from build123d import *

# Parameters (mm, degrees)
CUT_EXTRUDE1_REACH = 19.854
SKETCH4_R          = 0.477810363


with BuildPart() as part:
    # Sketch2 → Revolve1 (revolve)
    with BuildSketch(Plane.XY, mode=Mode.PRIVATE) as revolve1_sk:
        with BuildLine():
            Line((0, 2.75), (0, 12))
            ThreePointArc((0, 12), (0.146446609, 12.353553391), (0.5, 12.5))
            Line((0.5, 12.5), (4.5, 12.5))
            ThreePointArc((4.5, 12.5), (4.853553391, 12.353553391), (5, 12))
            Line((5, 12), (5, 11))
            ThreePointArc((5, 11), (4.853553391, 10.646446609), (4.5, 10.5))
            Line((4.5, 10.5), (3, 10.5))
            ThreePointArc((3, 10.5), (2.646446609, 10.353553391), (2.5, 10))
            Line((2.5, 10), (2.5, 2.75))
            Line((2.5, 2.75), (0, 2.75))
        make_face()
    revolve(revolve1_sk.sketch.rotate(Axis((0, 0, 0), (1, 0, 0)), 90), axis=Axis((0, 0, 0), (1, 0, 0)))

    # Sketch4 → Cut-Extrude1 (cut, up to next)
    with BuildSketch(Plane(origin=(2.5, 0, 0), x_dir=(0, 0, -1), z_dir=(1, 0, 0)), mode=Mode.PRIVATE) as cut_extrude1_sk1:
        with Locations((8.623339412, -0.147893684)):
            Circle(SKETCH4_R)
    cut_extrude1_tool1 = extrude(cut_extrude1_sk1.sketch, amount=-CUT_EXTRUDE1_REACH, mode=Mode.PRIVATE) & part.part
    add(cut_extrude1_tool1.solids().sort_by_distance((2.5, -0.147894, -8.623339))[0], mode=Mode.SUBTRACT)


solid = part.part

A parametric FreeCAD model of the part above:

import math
import FreeCAD as App
import Part
import Sketcher

V = App.Vector
Q = App.Units.Quantity

doc = App.newDocument("Part")
body = doc.addObject("PartDesign::Body", "Body")

sketch1 = body.newObject("Sketcher::SketchObject", "Sketch")
sketch1.AttachmentSupport = (doc.getObject("XY_Plane"), [""])
sketch1.MapMode = "FlatFace"
sketch1.addGeometry([
    Part.LineSegment(V(0, 12, 0), V(0, 2.75, 0)),
    Part.LineSegment(V(0, 2.75, 0), V(2.5, 2.75, 0)),
    Part.LineSegment(V(2.5, 2.75, 0), V(2.5, 10, 0)),
    Part.ArcOfCircle(Part.Circle(V(3, 10, 0), V(0, 0, 1), 0.5), math.radians(90), math.radians(180)),
    Part.LineSegment(V(3, 10.5, 0), V(4.5, 10.5, 0)),
    Part.ArcOfCircle(Part.Circle(V(4.5, 11, 0), V(0, 0, 1), 0.5), math.radians(-90), math.radians(0)),
    Part.LineSegment(V(5, 11, 0), V(5, 12, 0)),
    Part.ArcOfCircle(Part.Circle(V(4.5, 12, 0), V(0, 0, 1), 0.5), math.radians(0), math.radians(90)),
    Part.LineSegment(V(4.5, 12.5, 0), V(0.5, 12.5, 0)),
    Part.ArcOfCircle(Part.Circle(V(0.5, 12, 0), V(0, 0, 1), 0.5), math.radians(90), math.radians(180)),
], False)
sketch1.addConstraint([
    Sketcher.Constraint("Coincident", 0, 2, 1, 1),
    Sketcher.Constraint("Coincident", 1, 2, 2, 1),
    Sketcher.Constraint("Tangent", 2, 2, 3, 2),
    Sketcher.Constraint("Tangent", 3, 1, 4, 1),
    Sketcher.Constraint("Tangent", 4, 2, 5, 1),
    Sketcher.Constraint("Tangent", 5, 2, 6, 1),
    Sketcher.Constraint("Tangent", 6, 2, 7, 1),
    Sketcher.Constraint("Tangent", 7, 2, 8, 1),
    Sketcher.Constraint("Tangent", 8, 2, 9, 1),
    Sketcher.Constraint("Tangent", 9, 2, 0, 1),
    Sketcher.Constraint("Vertical", 0),
    Sketcher.Constraint("Horizontal", 1),
    Sketcher.Constraint("Vertical", 2),
    Sketcher.Constraint("Horizontal", 4),
    Sketcher.Constraint("Vertical", 6),
    Sketcher.Constraint("Horizontal", 8),
    Sketcher.Constraint("Equal", 3, 5),
    Sketcher.Constraint("Equal", 5, 7),
    Sketcher.Constraint("Equal", 7, 9),
    Sketcher.Constraint("PointOnObject", 0, 2, -2),
    Sketcher.Constraint("Radius", 3, Q("0.5 mm")),
    Sketcher.Constraint("DistanceX", 8, 2, 8, 1, Q("4 mm")),
    Sketcher.Constraint("DistanceY", 6, 1, 6, 2, Q("1 mm")),
    Sketcher.Constraint("DistanceX", 1, 1, 1, 2, Q("2.5 mm")),
    Sketcher.Constraint("DistanceY", -1, 1, 3, 3, Q("10 mm")),
    Sketcher.Constraint("DistanceY", 0, 2, 0, 1, Q("9.25 mm")),
])
revolution = body.newObject("PartDesign::Revolution", "Revolution")
revolution.Profile = sketch1
revolution.ReferenceAxis = (sketch1, ["H_Axis"])
revolution.Angle = 360

sketch2 = body.newObject("Sketcher::SketchObject", "Sketch001")
sketch2.AttachmentSupport = (doc.getObject("YZ_Plane"), [""])
sketch2.MapMode = "FlatFace"
sketch2.AttachmentOffset = App.Placement(V(0, 0, 2.5), App.Rotation())
sketch2.addGeometry(Part.Circle(V(-0.15, -8.62, 0), V(0, 0, 1), 0.48), False)
sketch2.addConstraint([
    Sketcher.Constraint("Diameter", 0, Q("0.955621 mm")),
    Sketcher.Constraint("DistanceY", 0, 3, -1, 1, Q("8.623339 mm")),
    Sketcher.Constraint("DistanceX", 0, 3, -1, 1, Q("0.147894 mm")),
])
pocket1 = body.newObject("PartDesign::Pocket", "Pocket")
pocket1.Profile = sketch2
pocket1.Type = "UpToFirst"

doc.recompute()
